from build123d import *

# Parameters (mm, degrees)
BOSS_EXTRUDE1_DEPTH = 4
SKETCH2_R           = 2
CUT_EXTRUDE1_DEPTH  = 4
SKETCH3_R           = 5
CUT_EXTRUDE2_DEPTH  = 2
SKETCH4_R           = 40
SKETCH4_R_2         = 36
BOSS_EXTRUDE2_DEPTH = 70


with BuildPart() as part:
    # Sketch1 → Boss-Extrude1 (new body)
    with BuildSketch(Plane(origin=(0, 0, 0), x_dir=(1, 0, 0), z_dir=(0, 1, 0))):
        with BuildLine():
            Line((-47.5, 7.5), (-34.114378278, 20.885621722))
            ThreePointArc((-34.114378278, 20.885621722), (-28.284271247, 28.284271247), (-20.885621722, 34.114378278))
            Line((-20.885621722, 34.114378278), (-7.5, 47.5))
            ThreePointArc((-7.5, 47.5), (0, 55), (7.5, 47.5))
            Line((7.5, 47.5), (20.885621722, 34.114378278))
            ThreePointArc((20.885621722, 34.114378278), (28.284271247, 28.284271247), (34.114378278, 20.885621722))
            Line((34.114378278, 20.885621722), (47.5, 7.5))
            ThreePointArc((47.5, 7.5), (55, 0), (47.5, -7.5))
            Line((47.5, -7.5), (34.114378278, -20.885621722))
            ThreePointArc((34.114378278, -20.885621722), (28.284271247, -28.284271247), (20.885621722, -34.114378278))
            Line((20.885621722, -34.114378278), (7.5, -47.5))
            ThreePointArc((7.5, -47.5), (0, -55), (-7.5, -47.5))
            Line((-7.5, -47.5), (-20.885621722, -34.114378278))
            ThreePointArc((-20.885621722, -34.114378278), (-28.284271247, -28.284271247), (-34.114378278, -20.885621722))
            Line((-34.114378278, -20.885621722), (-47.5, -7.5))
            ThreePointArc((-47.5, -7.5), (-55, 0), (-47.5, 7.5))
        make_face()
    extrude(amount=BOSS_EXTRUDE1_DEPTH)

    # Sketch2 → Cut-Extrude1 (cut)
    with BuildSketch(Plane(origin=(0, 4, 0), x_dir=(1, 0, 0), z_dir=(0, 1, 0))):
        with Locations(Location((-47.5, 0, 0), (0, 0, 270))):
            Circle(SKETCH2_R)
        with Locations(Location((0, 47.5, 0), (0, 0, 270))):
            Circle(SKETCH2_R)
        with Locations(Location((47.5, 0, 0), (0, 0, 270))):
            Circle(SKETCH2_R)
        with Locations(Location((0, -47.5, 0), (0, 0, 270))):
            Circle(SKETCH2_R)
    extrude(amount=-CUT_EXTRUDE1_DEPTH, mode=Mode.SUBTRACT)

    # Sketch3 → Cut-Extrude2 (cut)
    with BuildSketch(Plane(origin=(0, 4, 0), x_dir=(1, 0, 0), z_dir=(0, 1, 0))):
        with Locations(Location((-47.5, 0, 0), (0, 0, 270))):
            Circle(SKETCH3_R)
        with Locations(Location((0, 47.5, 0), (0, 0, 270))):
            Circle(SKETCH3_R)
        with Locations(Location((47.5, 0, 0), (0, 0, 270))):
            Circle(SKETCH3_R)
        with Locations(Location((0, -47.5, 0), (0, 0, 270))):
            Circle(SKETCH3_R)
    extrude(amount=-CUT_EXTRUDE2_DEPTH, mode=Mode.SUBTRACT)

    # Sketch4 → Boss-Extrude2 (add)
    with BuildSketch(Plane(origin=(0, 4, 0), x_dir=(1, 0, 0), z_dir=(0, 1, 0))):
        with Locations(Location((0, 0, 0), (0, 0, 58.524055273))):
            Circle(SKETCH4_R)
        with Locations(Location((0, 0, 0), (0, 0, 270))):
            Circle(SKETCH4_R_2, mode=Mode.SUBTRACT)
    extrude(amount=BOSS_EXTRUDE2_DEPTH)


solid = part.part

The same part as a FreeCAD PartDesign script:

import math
import FreeCAD as App
import Part
import Sketcher
from FreeCAD import Vector

doc = App.newDocument("Part")
body = doc.addObject("PartDesign::Body", "Body")

# Sketch on XZ plane
sketch1 = doc.addObject("Sketcher::SketchObject", "Sketch")
body.addObject(sketch1)
sketch1.AttachmentSupport = (doc.XZ_Plane, [""])
sketch1.MapMode = "FlatFace"
sketch1.addGeometry([
    Part.LineSegment(Vector(-34, -21, 0), Vector(-48, -8, 0)),  # 0
    Part.ArcOfCircle(Part.Circle(Vector(-48, 0, 0), Vector(0, 0, 1), 8), math.radians(90), math.radians(270)),  # 1
    Part.LineSegment(Vector(-48, 8, 0), Vector(-34, 21, 0)),  # 2
    Part.ArcOfCircle(Part.Circle(Vector(0, 0, 0), Vector(0, 0, 1), 40), math.radians(121), math.radians(149)),  # 3
    Part.LineSegment(Vector(-21, 34, 0), Vector(-8, 48, 0)),  # 4
    Part.ArcOfCircle(Part.Circle(Vector(0, 48, 0), Vector(0, 0, 1), 8), math.radians(0), math.radians(180)),  # 5
    Part.LineSegment(Vector(8, 48, 0), Vector(21, 34, 0)),  # 6
    Part.ArcOfCircle(Part.Circle(Vector(0, 0, 0), Vector(0, 0, 1), 40), math.radians(31), math.radians(59)),  # 7
    Part.LineSegment(Vector(34, 21, 0), Vector(48, 8, 0)),  # 8
    Part.ArcOfCircle(Part.Circle(Vector(48, 0, 0), Vector(0, 0, 1), 8), math.radians(-90), math.radians(90)),  # 9
    Part.LineSegment(Vector(48, -8, 0), Vector(34, -21, 0)),  # 10
    Part.ArcOfCircle(Part.Circle(Vector(0, 0, 0), Vector(0, 0, 1), 40), math.radians(-59), math.radians(-31)),  # 11
    Part.LineSegment(Vector(21, -34, 0), Vector(8, -48, 0)),  # 12
    Part.ArcOfCircle(Part.Circle(Vector(0, -48, 0), Vector(0, 0, 1), 8), math.radians(180), math.radians(360)),  # 13
    Part.LineSegment(Vector(-8, -48, 0), Vector(-21, -34, 0)),  # 14
    Part.ArcOfCircle(Part.Circle(Vector(0, 0, 0), Vector(0, 0, 1), 40), math.radians(-149), math.radians(-121)),  # 15
], False)
sketch1.addConstraint([
    Sketcher.Constraint("Coincident", 0, 2, 1, 2),
    Sketcher.Constraint("Coincident", 1, 1, 2, 1),
    Sketcher.Constraint("Coincident", 2, 2, 3, 2),
    Sketcher.Constraint("Coincident", 3, 1, 4, 1),
    Sketcher.Constraint("Coincident", 4, 2, 5, 2),
    Sketcher.Constraint("Coincident", 5, 1, 6, 1),
    Sketcher.Constraint("Coincident", 6, 2, 7, 2),
    Sketcher.Constraint("Coincident", 7, 1, 8, 1),
    Sketcher.Constraint("Coincident", 8, 2, 9, 2),
    Sketcher.Constraint("Coincident", 9, 1, 10, 1),
    Sketcher.Constraint("Coincident", 10, 2, 11, 2),
    Sketcher.Constraint("Coincident", 11, 1, 12, 1),
    Sketcher.Constraint("Coincident", 12, 2, 13, 2),
    Sketcher.Constraint("Coincident", 13, 1, 14, 1),
    Sketcher.Constraint("Coincident", 14, 2, 15, 2),
    Sketcher.Constraint("Coincident", 15, 1, 0, 1),
    Sketcher.Constraint("Coincident", 3, 3, -1, 1),
    Sketcher.Constraint("Coincident", 7, 3, -1, 1),
    Sketcher.Constraint("Coincident", 11, 3, -1, 1),
    Sketcher.Constraint("Coincident", 15, 3, -1, 1),
    Sketcher.Constraint("Equal", 1, 5),
    Sketcher.Constraint("Equal", 3, 7),
    Sketcher.Constraint("Equal", 5, 9),
    Sketcher.Constraint("Equal", 7, 11),
    Sketcher.Constraint("Equal", 9, 13),
    Sketcher.Constraint("Equal", 11, 15),
    Sketcher.Constraint("Symmetric", 1, 3, 9, 3, -1, 1),
    Sketcher.Constraint("Symmetric", 5, 3, 13, 3, -1, 1),
    Sketcher.Constraint("Symmetric", 4, 2, 5, 1, -2),
    Sketcher.Constraint("Symmetric", 1, 1, 8, 2, -2),
    Sketcher.Constraint("Perpendicular", 0, 2),
    Sketcher.Constraint("Parallel", 2, 4),
    Sketcher.Constraint("Perpendicular", 4, 6),
    Sketcher.Constraint("Parallel", 6, 8),
    Sketcher.Constraint("Perpendicular", 8, 10),
    Sketcher.Constraint("Parallel", 10, 12),
    Sketcher.Constraint("Perpendicular", 12, 14),
    Sketcher.Constraint("Horizontal", 5, 3, 4, 2),
    Sketcher.Constraint("Horizontal", 3, 1, 6, 2),
    Sketcher.Constraint("Horizontal", 13, 3, 12, 2),
    Sketcher.Constraint("Horizontal", 12, 2, 13, 1),
    Sketcher.Constraint("Horizontal", 10, 2, 15, 1),
    Sketcher.Constraint("Vertical", 1, 3, 0, 2),
    Sketcher.Constraint("Vertical", 0, 2, 1, 1),
    Sketcher.Constraint("Equal", 2, 4),
    Sketcher.Constraint("Radius", 3, 40.0),
    Sketcher.Constraint("Radius", 1, 7.5),
    Sketcher.Constraint("DistanceX", 1, 3, 9, 3, 95.0),
])
pad1 = doc.addObject("PartDesign::Pad", "Pad")
body.addObject(pad1)
pad1.Profile = sketch1
pad1.Length = 4
pad1.Reversed = True

# Sketch on XZ plane
sketch2 = doc.addObject("Sketcher::SketchObject", "Sketch001")
body.addObject(sketch2)
sketch2.AttachmentSupport = (doc.XZ_Plane, [""])
sketch2.MapMode = "FlatFace"
sketch2.AttachmentOffset = App.Placement(Vector(0, 0, -4), App.Rotation())
sketch2.addGeometry([
    Part.Circle(Vector(-47.5, 0, 0), Vector(0, 0, 1), 2),
    Part.Circle(Vector(0, -47.5, 0), Vector(0, 0, 1), 2),
    Part.Circle(Vector(47.5, 0, 0), Vector(0, 0, 1), 2),
    Part.Circle(Vector(0, 47.5, 0), Vector(0, 0, 1), 2),
], False)
sketch2.addConstraint([
    Sketcher.Constraint("Equal", 0, 1),
    Sketcher.Constraint("Equal", 1, 2),
    Sketcher.Constraint("Equal", 2, 3),
    Sketcher.Constraint("Symmetric", 0, 3, 2, 3, -1, 1),
    Sketcher.Constraint("Symmetric", 1, 3, 3, 3, -1, 1),
    Sketcher.Constraint("PointOnObject", 0, 3, -1),
    Sketcher.Constraint("PointOnObject", 1, 3, -2),
    Sketcher.Constraint("Diameter", 0, 4.0),
    Sketcher.Constraint("DistanceX", 0, 3, 2, 3, 95.0),
    Sketcher.Constraint("DistanceY", 1, 3, 3, 3, 95.0),
])
pocket1 = doc.addObject("PartDesign::Pocket", "Pocket")
body.addObject(pocket1)
pocket1.Profile = sketch2
pocket1.Length = 4
pocket1.Reversed = True

# Sketch on XZ plane
sketch3 = doc.addObject("Sketcher::SketchObject", "Sketch002")
body.addObject(sketch3)
sketch3.AttachmentSupport = (doc.XZ_Plane, [""])
sketch3.MapMode = "FlatFace"
sketch3.AttachmentOffset = App.Placement(Vector(0, 0, -4), App.Rotation())
sketch3.addGeometry([
    Part.Circle(Vector(-48, 0, 0), Vector(0, 0, 1), 5),
    Part.Circle(Vector(0, -48, 0), Vector(0, 0, 1), 5),
    Part.Circle(Vector(48, 0, 0), Vector(0, 0, 1), 5),
    Part.Circle(Vector(0, 48, 0), Vector(0, 0, 1), 5),
], False)
sketch3.addConstraint([
    Sketcher.Constraint("Equal", 0, 1),
    Sketcher.Constraint("Equal", 1, 2),
    Sketcher.Constraint("Equal", 2, 3),
    Sketcher.Constraint("Symmetric", 0, 3, 2, 3, -1, 1),
    Sketcher.Constraint("Symmetric", 1, 3, 3, 3, -1, 1),
    Sketcher.Constraint("PointOnObject", 0, 3, -1),
    Sketcher.Constraint("PointOnObject", 1, 3, -2),
    Sketcher.Constraint("Diameter", 0, 10.0),
    Sketcher.Constraint("DistanceX", 0, 3, 2, 3, 95.0),
    Sketcher.Constraint("DistanceY", 1, 3, 3, 3, 95.0),
])
pocket2 = doc.addObject("PartDesign::Pocket", "Pocket001")
body.addObject(pocket2)
pocket2.Profile = sketch3
pocket2.Length = 2
pocket2.Reversed = True

# Sketch on XZ plane
sketch4 = doc.addObject("Sketcher::SketchObject", "Sketch003")
body.addObject(sketch4)
sketch4.AttachmentSupport = (doc.XZ_Plane, [""])
sketch4.MapMode = "FlatFace"
sketch4.AttachmentOffset = App.Placement(Vector(0, 0, -4), App.Rotation())
sketch4.addGeometry([
    Part.Circle(Vector(0, 0, 0), Vector(0, 0, 1), 40),
    Part.Circle(Vector(0, 0, 0), Vector(0, 0, 1), 36),
], False)
sketch4.addConstraint([
    Sketcher.Constraint("Coincident", 0, 3, -1, 1),
    Sketcher.Constraint("Coincident", 1, 3, -1, 1),
    Sketcher.Constraint("Diameter", 0, 80.0),
    Sketcher.Constraint("Diameter", 1, 72.0),
])
pad2 = doc.addObject("PartDesign::Pad", "Pad001")
body.addObject(pad2)
pad2.Profile = sketch4
pad2.Length = 70
pad2.Reversed = True

doc.recompute()
